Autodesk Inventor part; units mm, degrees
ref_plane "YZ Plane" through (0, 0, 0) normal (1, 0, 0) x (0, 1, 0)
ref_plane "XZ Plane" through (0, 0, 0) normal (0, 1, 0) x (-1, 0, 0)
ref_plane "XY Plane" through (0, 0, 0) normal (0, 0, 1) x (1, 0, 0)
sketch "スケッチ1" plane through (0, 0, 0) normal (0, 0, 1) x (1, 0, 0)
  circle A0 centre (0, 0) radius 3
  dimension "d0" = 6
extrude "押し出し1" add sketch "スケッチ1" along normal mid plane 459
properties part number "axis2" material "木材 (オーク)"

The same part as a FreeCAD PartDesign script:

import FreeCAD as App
import Part
import Sketcher

doc = App.newDocument("Part")
body = doc.addObject("PartDesign::Body", "Body")

sketch1 = body.newObject("Sketcher::SketchObject", "Sketch")
sketch1.AttachmentSupport = (doc.getObject("XY_Plane"), [""])
sketch1.MapMode = "FlatFace"
sketch1.addGeometry(Part.Circle(App.Vector(0, 0, 0), App.Vector(0, 0, 1), 3), False)
sketch1.addConstraint(Sketcher.Constraint("Coincident", 0, 3, -1, 1))
sketch1.addConstraint(Sketcher.Constraint("Diameter", 0, 6.0))
pad1 = body.newObject("PartDesign::Pad", "Pad")
pad1.Profile = sketch1
pad1.Length = 459
pad1.Midplane = True

doc.recompute()
